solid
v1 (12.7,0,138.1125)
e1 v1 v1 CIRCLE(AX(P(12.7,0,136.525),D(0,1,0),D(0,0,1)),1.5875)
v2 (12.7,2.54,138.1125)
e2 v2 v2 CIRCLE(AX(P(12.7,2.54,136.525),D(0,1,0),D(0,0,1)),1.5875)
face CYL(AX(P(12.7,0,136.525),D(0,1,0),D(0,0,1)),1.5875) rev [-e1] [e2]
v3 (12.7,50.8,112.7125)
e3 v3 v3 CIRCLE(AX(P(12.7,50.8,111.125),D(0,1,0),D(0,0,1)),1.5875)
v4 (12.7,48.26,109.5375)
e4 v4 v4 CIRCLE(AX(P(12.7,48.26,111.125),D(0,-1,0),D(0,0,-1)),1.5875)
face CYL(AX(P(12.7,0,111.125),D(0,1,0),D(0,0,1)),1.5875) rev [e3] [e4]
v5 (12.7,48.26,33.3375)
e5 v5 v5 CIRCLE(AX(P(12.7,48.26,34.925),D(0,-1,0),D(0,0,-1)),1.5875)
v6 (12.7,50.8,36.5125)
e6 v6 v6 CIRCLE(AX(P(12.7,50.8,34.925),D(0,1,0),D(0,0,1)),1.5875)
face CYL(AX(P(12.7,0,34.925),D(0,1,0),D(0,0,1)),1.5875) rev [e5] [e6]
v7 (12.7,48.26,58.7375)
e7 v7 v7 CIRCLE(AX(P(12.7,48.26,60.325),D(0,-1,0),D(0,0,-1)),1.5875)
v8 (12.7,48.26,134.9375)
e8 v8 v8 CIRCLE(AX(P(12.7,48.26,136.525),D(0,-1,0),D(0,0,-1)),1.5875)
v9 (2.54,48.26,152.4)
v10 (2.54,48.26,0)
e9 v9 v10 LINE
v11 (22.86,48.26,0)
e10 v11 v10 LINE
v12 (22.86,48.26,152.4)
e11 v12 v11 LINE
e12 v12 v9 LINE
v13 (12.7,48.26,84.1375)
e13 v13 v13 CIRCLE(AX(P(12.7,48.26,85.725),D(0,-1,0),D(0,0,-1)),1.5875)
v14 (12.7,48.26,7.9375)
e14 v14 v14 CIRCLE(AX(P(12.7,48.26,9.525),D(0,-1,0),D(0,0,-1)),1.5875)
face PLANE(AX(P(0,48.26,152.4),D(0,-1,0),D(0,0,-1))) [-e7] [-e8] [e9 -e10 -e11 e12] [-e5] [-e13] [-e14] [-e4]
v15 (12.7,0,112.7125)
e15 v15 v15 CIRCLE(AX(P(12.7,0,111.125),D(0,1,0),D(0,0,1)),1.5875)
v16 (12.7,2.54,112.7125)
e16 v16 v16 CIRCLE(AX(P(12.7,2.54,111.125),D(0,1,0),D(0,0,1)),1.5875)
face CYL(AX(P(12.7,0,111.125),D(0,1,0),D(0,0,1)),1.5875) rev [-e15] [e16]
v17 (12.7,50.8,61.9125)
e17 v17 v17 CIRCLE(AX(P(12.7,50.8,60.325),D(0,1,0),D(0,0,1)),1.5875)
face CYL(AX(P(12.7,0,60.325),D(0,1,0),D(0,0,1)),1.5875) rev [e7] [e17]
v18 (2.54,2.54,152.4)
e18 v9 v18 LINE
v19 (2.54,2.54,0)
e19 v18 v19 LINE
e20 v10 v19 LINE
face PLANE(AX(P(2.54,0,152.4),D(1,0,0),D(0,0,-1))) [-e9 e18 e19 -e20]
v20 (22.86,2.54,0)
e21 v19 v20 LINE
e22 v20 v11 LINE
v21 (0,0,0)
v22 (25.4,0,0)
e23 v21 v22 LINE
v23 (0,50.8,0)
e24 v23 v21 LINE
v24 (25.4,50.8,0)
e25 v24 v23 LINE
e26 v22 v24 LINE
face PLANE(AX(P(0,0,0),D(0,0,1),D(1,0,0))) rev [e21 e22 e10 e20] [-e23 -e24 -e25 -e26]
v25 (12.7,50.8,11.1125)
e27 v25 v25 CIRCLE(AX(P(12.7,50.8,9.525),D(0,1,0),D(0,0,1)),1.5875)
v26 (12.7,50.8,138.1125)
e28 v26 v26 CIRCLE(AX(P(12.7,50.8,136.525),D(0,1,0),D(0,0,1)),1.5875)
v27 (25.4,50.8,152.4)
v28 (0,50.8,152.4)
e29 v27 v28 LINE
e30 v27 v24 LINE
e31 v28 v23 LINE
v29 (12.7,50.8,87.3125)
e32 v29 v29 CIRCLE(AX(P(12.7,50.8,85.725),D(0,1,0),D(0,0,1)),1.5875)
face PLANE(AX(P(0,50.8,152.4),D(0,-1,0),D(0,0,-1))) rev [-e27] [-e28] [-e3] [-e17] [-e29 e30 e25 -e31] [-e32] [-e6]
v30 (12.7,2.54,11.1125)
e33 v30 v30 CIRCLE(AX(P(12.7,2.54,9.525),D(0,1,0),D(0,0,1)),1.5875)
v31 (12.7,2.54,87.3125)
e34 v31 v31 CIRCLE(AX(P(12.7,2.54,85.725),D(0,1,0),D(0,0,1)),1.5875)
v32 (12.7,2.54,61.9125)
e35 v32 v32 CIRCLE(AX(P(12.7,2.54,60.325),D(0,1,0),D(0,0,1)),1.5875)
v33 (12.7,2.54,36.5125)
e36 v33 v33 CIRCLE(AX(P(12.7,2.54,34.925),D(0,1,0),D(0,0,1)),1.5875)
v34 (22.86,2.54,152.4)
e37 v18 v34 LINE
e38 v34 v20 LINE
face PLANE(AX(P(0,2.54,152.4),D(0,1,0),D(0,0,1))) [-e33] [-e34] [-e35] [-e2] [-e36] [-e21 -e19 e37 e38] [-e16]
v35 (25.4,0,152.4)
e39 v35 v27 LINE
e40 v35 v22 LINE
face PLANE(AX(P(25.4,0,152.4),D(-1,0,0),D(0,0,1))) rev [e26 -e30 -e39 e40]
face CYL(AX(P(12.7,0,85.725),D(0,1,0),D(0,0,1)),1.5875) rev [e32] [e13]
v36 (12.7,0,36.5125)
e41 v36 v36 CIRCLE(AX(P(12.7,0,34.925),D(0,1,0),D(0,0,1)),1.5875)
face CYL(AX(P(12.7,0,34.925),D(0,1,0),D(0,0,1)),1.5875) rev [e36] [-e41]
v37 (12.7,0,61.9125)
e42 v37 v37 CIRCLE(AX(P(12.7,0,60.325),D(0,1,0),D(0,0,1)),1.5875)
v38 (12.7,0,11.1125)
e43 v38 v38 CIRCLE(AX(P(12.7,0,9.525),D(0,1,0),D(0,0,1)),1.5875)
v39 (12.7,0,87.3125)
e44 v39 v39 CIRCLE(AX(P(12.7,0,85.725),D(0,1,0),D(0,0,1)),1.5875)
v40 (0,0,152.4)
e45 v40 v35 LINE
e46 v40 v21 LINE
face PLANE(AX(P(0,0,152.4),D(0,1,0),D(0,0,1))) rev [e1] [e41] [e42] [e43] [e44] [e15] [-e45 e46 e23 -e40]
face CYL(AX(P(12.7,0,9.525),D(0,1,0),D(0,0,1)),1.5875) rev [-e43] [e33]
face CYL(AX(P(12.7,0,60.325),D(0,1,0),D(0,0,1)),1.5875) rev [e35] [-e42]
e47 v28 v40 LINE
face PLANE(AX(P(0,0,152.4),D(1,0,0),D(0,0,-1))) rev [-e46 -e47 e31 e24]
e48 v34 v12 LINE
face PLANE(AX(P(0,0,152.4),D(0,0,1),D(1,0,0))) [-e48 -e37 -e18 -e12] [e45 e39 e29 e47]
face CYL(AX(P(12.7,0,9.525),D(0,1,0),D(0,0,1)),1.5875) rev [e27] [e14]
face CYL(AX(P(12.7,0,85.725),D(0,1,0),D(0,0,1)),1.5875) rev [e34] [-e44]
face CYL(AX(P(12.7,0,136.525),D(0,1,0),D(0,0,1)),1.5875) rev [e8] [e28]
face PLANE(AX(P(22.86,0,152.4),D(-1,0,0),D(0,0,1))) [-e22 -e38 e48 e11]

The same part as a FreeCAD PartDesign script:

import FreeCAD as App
import Part
import Sketcher
from FreeCAD import Vector
Q = App.Units.Quantity


def add_polygon(sketch, points):
    """Adds a closed chain of lines whose ends are joined by coincident constraints."""
    first, n = sketch.GeometryCount, len(points)
    for a, b in zip(points, points[1:] + points[:1]):
        sketch.addGeometry(Part.LineSegment(App.Vector(*a, 0), App.Vector(*b, 0)), False)
    for i in range(n):
        sketch.addConstraint(Sketcher.Constraint("Coincident", first + i, 2, first + (i + 1) % n, 1))

doc = App.newDocument("Part")
body = doc.addObject("PartDesign::Body", "Body")

sketch1 = doc.addObject("Sketcher::SketchObject", "Sketch")
body.addObject(sketch1)
sketch1.AttachmentSupport = (doc.XY_Plane, [""])
sketch1.MapMode = "FlatFace"
add_polygon(sketch1, [(0, 50.8), (0, 0), (25.4, 0), (25.4, 50.8)])
add_polygon(sketch1, [(22.86, 2.54), (2.54, 2.54), (2.54, 48.26), (22.86, 48.26)])
sketch1.addConstraint(Sketcher.Constraint("Vertical", 0))
sketch1.addConstraint(Sketcher.Constraint("Horizontal", 1))
sketch1.addConstraint(Sketcher.Constraint("Vertical", 2))
sketch1.addConstraint(Sketcher.Constraint("Horizontal", 3))
sketch1.addConstraint(Sketcher.Constraint("Horizontal", 4))
sketch1.addConstraint(Sketcher.Constraint("Vertical", 5))
sketch1.addConstraint(Sketcher.Constraint("Horizontal", 6))
sketch1.addConstraint(Sketcher.Constraint("Vertical", 7))
sketch1.addConstraint(Sketcher.Constraint("Coincident", 0, 2, -1, 1))
sketch1.addConstraint(Sketcher.Constraint("DistanceX", 1, 1, 1, 2, Q("1 in")))
sketch1.addConstraint(Sketcher.Constraint("DistanceY", 0, 2, 0, 1, Q("2 in")))
sketch1.addConstraint(Sketcher.Constraint("DistanceX", 4, 2, 4, 1, Q("0.8 in")))
sketch1.addConstraint(Sketcher.Constraint("DistanceY", 5, 1, 5, 2, Q("1.8 in")))
sketch1.addConstraint(Sketcher.Constraint("DistanceX", -1, 1, 4, 2, Q("0.1 in")))
sketch1.addConstraint(Sketcher.Constraint("DistanceY", -1, 1, 4, 2, Q("0.1 in")))
pad1 = doc.addObject("PartDesign::Pad", "Pad")
body.addObject(pad1)
pad1.Profile = sketch1
pad1.Length = Q("6 in")

sketch2 = doc.addObject("Sketcher::SketchObject", "Sketch001")
body.addObject(sketch2)
sketch2.AttachmentSupport = (doc.XZ_Plane, [""])
sketch2.MapMode = "FlatFace"
sketch2.AttachmentOffset = App.Placement(Vector(0, 0, -2 * 25.4), App.Rotation())
sketch2.addGeometry(Part.Circle(Vector(12.7, 136.525, 0), Vector(0, 0, 1), 1.5875), False)
sketch2.addConstraint(Sketcher.Constraint("Diameter", 0, Q("0.125 in")))
sketch2.addConstraint(Sketcher.Constraint("DistanceX", -1, 1, 0, 3, Q("0.5 in")))
sketch2.addConstraint(Sketcher.Constraint("DistanceY", -1, 1, 0, 3, Q("5.375 in")))
pocket1 = doc.addObject("PartDesign::Pocket", "Pocket")
body.addObject(pocket1)
pocket1.Profile = sketch2
pocket1.Type = "ThroughAll"
pocket1.Reversed = True
doc.recompute()

linearpattern = doc.addObject("PartDesign::LinearPattern", "LinearPattern")
body.addObject(linearpattern)
linearpattern.Originals = [pocket1]
linearpattern.Direction = (doc.Z_Axis, [""])
linearpattern.Mode = "offset"
linearpattern.Offset = Q("1 in")
linearpattern.Occurrences = 50
linearpattern.Reversed = True
body.Tip = linearpattern

doc.recompute()
